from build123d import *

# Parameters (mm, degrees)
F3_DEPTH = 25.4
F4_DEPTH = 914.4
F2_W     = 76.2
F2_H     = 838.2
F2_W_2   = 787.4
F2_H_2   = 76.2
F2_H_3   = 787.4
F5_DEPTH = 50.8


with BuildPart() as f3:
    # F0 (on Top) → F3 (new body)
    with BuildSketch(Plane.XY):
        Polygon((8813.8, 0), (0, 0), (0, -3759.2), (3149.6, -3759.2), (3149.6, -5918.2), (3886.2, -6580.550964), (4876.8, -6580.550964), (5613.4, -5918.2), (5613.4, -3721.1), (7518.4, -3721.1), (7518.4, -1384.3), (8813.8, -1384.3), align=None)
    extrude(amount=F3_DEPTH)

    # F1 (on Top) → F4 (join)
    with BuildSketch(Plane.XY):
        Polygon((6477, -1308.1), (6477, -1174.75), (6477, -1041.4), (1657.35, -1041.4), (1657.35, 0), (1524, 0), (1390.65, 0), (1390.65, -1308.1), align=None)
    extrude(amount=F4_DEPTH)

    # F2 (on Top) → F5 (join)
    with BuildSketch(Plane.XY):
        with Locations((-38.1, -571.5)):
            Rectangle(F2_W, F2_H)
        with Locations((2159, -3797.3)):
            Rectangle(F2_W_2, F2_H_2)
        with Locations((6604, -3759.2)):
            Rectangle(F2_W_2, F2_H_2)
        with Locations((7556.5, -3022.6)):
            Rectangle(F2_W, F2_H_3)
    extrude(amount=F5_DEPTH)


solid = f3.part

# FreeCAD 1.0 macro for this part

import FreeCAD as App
import Part
import Sketcher
from FreeCAD import Vector
Q = App.Units.Quantity

doc = App.newDocument("Part")
body = doc.addObject("PartDesign::Body", "Body")

# Sketch on XY plane
sketch1 = body.newObject("Sketcher::SketchObject", "Sketch")
sketch1.AttachmentSupport = (doc.getObject("XY_Plane"), [""])
sketch1.MapMode = "FlatFace"
sketch1.addGeometry([
    Part.LineSegment(Vector(8814, 0, 0), Vector(0, 0, 0)),  # 0
    Part.LineSegment(Vector(0, 0, 0), Vector(0, -3759, 0)),  # 1
    Part.LineSegment(Vector(0, -3759, 0), Vector(3150, -3759, 0)),  # 2
    Part.LineSegment(Vector(3150, -3759, 0), Vector(3150, -5918, 0)),  # 3
    Part.LineSegment(Vector(3150, -5918, 0), Vector(3886, -6581, 0)),  # 4
    Part.LineSegment(Vector(3886, -6581, 0), Vector(4877, -6581, 0)),  # 5
    Part.LineSegment(Vector(4877, -6581, 0), Vector(5613, -5918, 0)),  # 6
    Part.LineSegment(Vector(5613, -5918, 0), Vector(5613, -3721, 0)),  # 7
    Part.LineSegment(Vector(5613, -3721, 0), Vector(7518, -3721, 0)),  # 8
    Part.LineSegment(Vector(7518, -3721, 0), Vector(7518, -1384, 0)),  # 9
    Part.LineSegment(Vector(7518, -1384, 0), Vector(8814, -1384, 0)),  # 10
    Part.LineSegment(Vector(8814, -1384, 0), Vector(8814, 0, 0)),  # 11
], False)
sketch1.addConstraint([
    Sketcher.Constraint("Coincident", 0, 2, 1, 1),
    Sketcher.Constraint("Coincident", 1, 2, 2, 1),
    Sketcher.Constraint("Coincident", 2, 2, 3, 1),
    Sketcher.Constraint("Coincident", 3, 2, 4, 1),
    Sketcher.Constraint("Coincident", 4, 2, 5, 1),
    Sketcher.Constraint("Coincident", 5, 2, 6, 1),
    Sketcher.Constraint("Coincident", 6, 2, 7, 1),
    Sketcher.Constraint("Coincident", 7, 2, 8, 1),
    Sketcher.Constraint("Coincident", 8, 2, 9, 1),
    Sketcher.Constraint("Coincident", 9, 2, 10, 1),
    Sketcher.Constraint("Coincident", 10, 2, 11, 1),
    Sketcher.Constraint("Coincident", 11, 2, 0, 1),
    Sketcher.Constraint("Horizontal", 0),
    Sketcher.Constraint("Vertical", 1),
    Sketcher.Constraint("Horizontal", 2),
    Sketcher.Constraint("Vertical", 3),
    Sketcher.Constraint("Horizontal", 5),
    Sketcher.Constraint("Vertical", 7),
    Sketcher.Constraint("Horizontal", 8),
    Sketcher.Constraint("Vertical", 9),
    Sketcher.Constraint("Horizontal", 10),
    Sketcher.Constraint("Vertical", 11),
    Sketcher.Constraint("Coincident", 0, 2, -1, 1),
    Sketcher.Constraint("Horizontal", 3, 2, 6, 2),
    Sketcher.Constraint("Equal", 4, 6),
    Sketcher.Constraint("DistanceX", 0, 2, 0, 1, Q("347 in")),
    Sketcher.Constraint("DistanceX", 2, 1, 2, 2, Q("124 in")),
    Sketcher.Constraint("DistanceX", 5, 1, 5, 2, Q("39 in")),
    Sketcher.Constraint("DistanceX", 8, 1, 8, 2, Q("75 in")),
    Sketcher.Constraint("DistanceX", 10, 1, 10, 2, Q("51 in")),
    Sketcher.Constraint("DistanceY", 1, 2, 1, 1, Q("148 in")),
    Sketcher.Constraint("DistanceY", 3, 2, 3, 1, Q("85 in")),
    Sketcher.Constraint("DistanceY", 9, 1, 9, 2, Q("92 in")),
    Sketcher.Constraint("Distance", 4, Q("39 in")),
    Sketcher.Constraint("DistanceY", 7, 1, 7, 2, Q("86.5 in")),
])
pad1 = body.newObject("PartDesign::Pad", "Pad")
pad1.Profile = sketch1
pad1.Length = Q("1 in")

# Sketch on XY plane
sketch2 = body.newObject("Sketcher::SketchObject", "Sketch001")
sketch2.AttachmentSupport = (doc.getObject("XY_Plane"), [""])
sketch2.MapMode = "FlatFace"
sketch2.addGeometry([
    Part.LineSegment(Vector(6477, -1308, 0), Vector(6477, -1041, 0)),  # 0
    Part.LineSegment(Vector(6477, -1041, 0), Vector(1657, -1041, 0)),  # 1
    Part.LineSegment(Vector(1657, -1041, 0), Vector(1657, 0, 0)),  # 2
    Part.LineSegment(Vector(1657, 0, 0), Vector(1391, 0, 0)),  # 3
    Part.LineSegment(Vector(1391, 0, 0), Vector(1391, -1308, 0)),  # 4
    Part.LineSegment(Vector(1391, -1308, 0), Vector(6477, -1308, 0)),  # 5
], False)
sketch2.addConstraint([
    Sketcher.Constraint("Coincident", 0, 2, 1, 1),
    Sketcher.Constraint("Coincident", 1, 2, 2, 1),
    Sketcher.Constraint("Coincident", 2, 2, 3, 1),
    Sketcher.Constraint("Coincident", 3, 2, 4, 1),
    Sketcher.Constraint("Coincident", 4, 2, 5, 1),
    Sketcher.Constraint("Coincident", 5, 2, 0, 1),
    Sketcher.Constraint("Vertical", 0),
    Sketcher.Constraint("Horizontal", 1),
    Sketcher.Constraint("Vertical", 2),
    Sketcher.Constraint("Horizontal", 3),
    Sketcher.Constraint("Vertical", 4),
    Sketcher.Constraint("Horizontal", 5),
    Sketcher.Constraint("PointOnObject", 2, 2, -1),
    Sketcher.Constraint("Equal", 3, 0),
    Sketcher.Constraint("DistanceY", 2, 1, 2, 2, Q("41 in")),
    Sketcher.Constraint("DistanceX", 3, 2, 3, 1, Q("10.5 in")),
    Sketcher.Constraint("DistanceX", -1, 1, 0, 2, Q("255 in")),
    Sketcher.Constraint("DistanceX", 1, 2, 1, 1, Q("189.75 in")),
])
pad2 = body.newObject("PartDesign::Pad", "Pad001")
pad2.Profile = sketch2
pad2.Length = Q("36 in")

# Sketch on XY plane
sketch3 = body.newObject("Sketcher::SketchObject", "Sketch002")
sketch3.AttachmentSupport = (doc.getObject("XY_Plane"), [""])
sketch3.MapMode = "FlatFace"
sketch3.addGeometry([
    Part.LineSegment(Vector(-76, -152, 0), Vector(-76, -991, 0)),  # 0
    Part.LineSegment(Vector(-76, -991, 0), Vector(0, -991, 0)),  # 1
    Part.LineSegment(Vector(0, -991, 0), Vector(0, -152, 0)),  # 2
    Part.LineSegment(Vector(0, -152, 0), Vector(-76, -152, 0)),  # 3
    Part.LineSegment(Vector(1765, -3759, 0), Vector(1765, -3835, 0)),  # 4
    Part.LineSegment(Vector(1765, -3835, 0), Vector(2553, -3835, 0)),  # 5
    Part.LineSegment(Vector(2553, -3835, 0), Vector(2553, -3759, 0)),  # 6
    Part.LineSegment(Vector(2553, -3759, 0), Vector(1765, -3759, 0)),  # 7
    Part.LineSegment(Vector(6210, -3721, 0), Vector(6210, -3797, 0)),  # 8
    Part.LineSegment(Vector(6210, -3797, 0), Vector(6998, -3797, 0)),  # 9
    Part.LineSegment(Vector(6998, -3797, 0), Vector(6998, -3721, 0)),  # 10
    Part.LineSegment(Vector(6998, -3721, 0), Vector(6210, -3721, 0)),  # 11
    Part.LineSegment(Vector(7518, -2629, 0), Vector(7518, -3416, 0)),  # 12
    Part.LineSegment(Vector(7518, -3416, 0), Vector(7595, -3416, 0)),  # 13
    Part.LineSegment(Vector(7595, -3416, 0), Vector(7595, -2629, 0)),  # 14
    Part.LineSegment(Vector(7595, -2629, 0), Vector(7518, -2629, 0)),  # 15
], False)
sketch3.addConstraint([
    Sketcher.Constraint("Coincident", 0, 2, 1, 1),
    Sketcher.Constraint("Coincident", 1, 2, 2, 1),
    Sketcher.Constraint("Coincident", 2, 2, 3, 1),
    Sketcher.Constraint("Coincident", 3, 2, 0, 1),
    Sketcher.Constraint("Coincident", 4, 2, 5, 1),
    Sketcher.Constraint("Coincident", 5, 2, 6, 1),
    Sketcher.Constraint("Coincident", 6, 2, 7, 1),
    Sketcher.Constraint("Coincident", 7, 2, 4, 1),
    Sketcher.Constraint("Coincident", 8, 2, 9, 1),
    Sketcher.Constraint("Coincident", 9, 2, 10, 1),
    Sketcher.Constraint("Coincident", 10, 2, 11, 1),
    Sketcher.Constraint("Coincident", 11, 2, 8, 1),
    Sketcher.Constraint("Coincident", 12, 2, 13, 1),
    Sketcher.Constraint("Coincident", 13, 2, 14, 1),
    Sketcher.Constraint("Coincident", 14, 2, 15, 1),
    Sketcher.Constraint("Coincident", 15, 2, 12, 1),
    Sketcher.Constraint("Vertical", 0),
    Sketcher.Constraint("Horizontal", 1),
    Sketcher.Constraint("Vertical", 2),
    Sketcher.Constraint("Horizontal", 3),
    Sketcher.Constraint("Vertical", 4),
    Sketcher.Constraint("Horizontal", 5),
    Sketcher.Constraint("Vertical", 6),
    Sketcher.Constraint("Horizontal", 7),
    Sketcher.Constraint("Vertical", 8),
    Sketcher.Constraint("Horizontal", 9),
    Sketcher.Constraint("Vertical", 10),
    Sketcher.Constraint("Horizontal", 11),
    Sketcher.Constraint("Vertical", 12),
    Sketcher.Constraint("Horizontal", 13),
    Sketcher.Constraint("Vertical", 14),
    Sketcher.Constraint("Horizontal", 15),
    Sketcher.Constraint("PointOnObject", 1, 2, -2),
    Sketcher.Constraint("Equal", 7, 9),
    Sketcher.Constraint("Equal", 3, 13),
    Sketcher.Constraint("Equal", 15, 4),
    Sketcher.Constraint("Equal", 6, 8),
    Sketcher.Constraint("Equal", 11, 12),
    Sketcher.Constraint("DistanceX", 1, 1, 1, 2, Q("3 in")),
    Sketcher.Constraint("DistanceX", 5, 1, 5, 2, Q("31 in")),
    Sketcher.Constraint("DistanceY", 0, 2, 0, 1, Q("33 in")),
    Sketcher.Constraint("DistanceY", 0, 2, -1, 1, Q("39 in")),
    Sketcher.Constraint("DistanceY", 4, 2, -1, 1, Q("151 in")),
    Sketcher.Constraint("DistanceX", -1, 1, 12, 2, Q("296 in")),
    Sketcher.Constraint("DistanceX", 5, 2, 8, 2, Q("144 in")),
    Sketcher.Constraint("DistanceY", 10, 2, 12, 2, Q("12 in")),
    Sketcher.Constraint("DistanceX", -1, 1, 4, 2, Q("69.5 in")),
    Sketcher.Constraint("DistanceY", 8, 2, -1, 1, Q("149.5 in")),
])
pad3 = body.newObject("PartDesign::Pad", "Pad002")
pad3.Profile = sketch3
pad3.Length = Q("2 in")

doc.recompute()
